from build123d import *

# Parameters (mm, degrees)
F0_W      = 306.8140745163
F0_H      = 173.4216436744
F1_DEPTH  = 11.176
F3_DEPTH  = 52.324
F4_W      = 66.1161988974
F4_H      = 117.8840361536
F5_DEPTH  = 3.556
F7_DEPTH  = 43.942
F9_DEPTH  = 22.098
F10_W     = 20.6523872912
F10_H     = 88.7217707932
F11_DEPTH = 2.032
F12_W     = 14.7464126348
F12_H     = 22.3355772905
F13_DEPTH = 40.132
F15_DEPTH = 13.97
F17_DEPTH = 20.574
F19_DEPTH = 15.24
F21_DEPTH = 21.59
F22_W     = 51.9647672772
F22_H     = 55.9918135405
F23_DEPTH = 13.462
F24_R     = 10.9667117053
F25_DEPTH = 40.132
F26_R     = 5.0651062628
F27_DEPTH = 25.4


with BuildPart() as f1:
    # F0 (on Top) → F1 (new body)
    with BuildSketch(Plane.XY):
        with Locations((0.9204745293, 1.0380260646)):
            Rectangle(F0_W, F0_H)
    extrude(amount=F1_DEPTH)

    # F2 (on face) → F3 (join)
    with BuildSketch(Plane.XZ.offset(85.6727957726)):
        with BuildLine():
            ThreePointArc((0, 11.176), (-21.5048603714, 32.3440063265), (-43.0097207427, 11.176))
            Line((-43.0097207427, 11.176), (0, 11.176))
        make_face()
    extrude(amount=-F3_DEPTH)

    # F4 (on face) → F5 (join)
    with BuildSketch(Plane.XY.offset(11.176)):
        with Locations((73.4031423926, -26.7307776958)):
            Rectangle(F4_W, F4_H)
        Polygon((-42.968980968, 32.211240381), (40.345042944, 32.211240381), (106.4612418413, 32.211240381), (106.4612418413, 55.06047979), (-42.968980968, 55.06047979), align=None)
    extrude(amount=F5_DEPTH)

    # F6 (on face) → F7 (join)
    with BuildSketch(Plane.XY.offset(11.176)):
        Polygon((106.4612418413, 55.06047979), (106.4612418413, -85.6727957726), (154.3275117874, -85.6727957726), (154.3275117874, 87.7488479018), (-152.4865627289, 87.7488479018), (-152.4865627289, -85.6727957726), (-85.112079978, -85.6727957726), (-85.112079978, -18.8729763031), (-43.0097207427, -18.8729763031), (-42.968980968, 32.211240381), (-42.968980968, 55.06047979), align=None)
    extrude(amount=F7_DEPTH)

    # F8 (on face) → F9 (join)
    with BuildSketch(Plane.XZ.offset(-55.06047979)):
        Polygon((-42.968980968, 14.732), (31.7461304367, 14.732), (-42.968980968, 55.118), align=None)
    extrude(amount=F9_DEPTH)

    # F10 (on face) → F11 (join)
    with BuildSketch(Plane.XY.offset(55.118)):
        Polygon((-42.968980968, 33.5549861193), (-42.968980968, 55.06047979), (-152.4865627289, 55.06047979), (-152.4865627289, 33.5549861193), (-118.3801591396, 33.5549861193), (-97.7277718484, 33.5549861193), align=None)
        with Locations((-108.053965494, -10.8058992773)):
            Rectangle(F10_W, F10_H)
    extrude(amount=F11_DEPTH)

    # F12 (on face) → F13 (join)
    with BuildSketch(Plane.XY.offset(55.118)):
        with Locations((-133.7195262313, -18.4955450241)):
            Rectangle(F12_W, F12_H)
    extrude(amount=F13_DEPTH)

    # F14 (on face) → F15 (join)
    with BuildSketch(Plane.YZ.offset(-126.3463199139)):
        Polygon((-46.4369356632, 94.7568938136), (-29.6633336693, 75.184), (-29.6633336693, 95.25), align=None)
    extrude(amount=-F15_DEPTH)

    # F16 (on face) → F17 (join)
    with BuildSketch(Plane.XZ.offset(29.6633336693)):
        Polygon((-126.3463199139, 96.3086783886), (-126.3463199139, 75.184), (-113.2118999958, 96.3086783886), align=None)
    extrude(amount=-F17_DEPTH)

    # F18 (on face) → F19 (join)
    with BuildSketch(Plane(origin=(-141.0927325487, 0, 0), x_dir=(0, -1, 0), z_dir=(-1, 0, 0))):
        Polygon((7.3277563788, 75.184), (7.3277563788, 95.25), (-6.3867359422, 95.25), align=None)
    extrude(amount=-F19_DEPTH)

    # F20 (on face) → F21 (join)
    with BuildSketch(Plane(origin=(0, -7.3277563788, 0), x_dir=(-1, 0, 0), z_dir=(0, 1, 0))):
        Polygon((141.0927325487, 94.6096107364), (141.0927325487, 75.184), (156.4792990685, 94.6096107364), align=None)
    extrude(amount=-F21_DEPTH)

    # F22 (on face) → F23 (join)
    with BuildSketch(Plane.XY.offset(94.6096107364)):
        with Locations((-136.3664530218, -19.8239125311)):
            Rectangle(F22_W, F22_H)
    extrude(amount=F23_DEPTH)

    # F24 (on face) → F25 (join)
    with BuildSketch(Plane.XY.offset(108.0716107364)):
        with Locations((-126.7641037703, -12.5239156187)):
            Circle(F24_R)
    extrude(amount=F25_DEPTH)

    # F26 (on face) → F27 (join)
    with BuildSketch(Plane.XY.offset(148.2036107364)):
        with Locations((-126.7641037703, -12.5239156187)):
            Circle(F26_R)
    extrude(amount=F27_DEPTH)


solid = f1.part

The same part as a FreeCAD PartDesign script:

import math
import FreeCAD as App
import Part
import Sketcher

V = App.Vector
Q = App.Units.Quantity

doc = App.newDocument("Part")
params = doc.addObject("Spreadsheet::Sheet", "Params")
for row, (alias, value) in enumerate([
    ("pad1_length", "0.44 in"),
    ("pad2_length", "2.06 in"),
    ("sketch3_width", "2.603 in"),
    ("pad3_length", "0.14 in"),
    ("pad4_length", "1.73 in"),
    ("sketch5_height", "1.59 in"),
    ("pad5_length", "0.87 in"),
    ("pad6_length", "0.08 in"),
    ("pad7_length", "1.58 in"),
    ("sketch8_height", "0.79 in"),
    ("pad8_length", "0.55 in"),
    ("pad9_length", "0.81 in"),
    ("sketch10_height", "0.79 in"),
    ("pad10_length", "0.6 in"),
    ("pad11_length", "0.85 in"),
    ("pad12_length", "0.53 in"),
    ("pad13_length", "1.58 in"),
    ("pad14_length", "1 in"),
], start=1):
    params.set(f"A{row}", alias)
    params.set(f"B{row}", "=" + value)
    params.setAlias(f"B{row}", alias)

body = doc.addObject("PartDesign::Body", "Body")

sketch1 = doc.addObject("Sketcher::SketchObject", "Sketch")
body.addObject(sketch1)
sketch1.AttachmentSupport = (doc.XY_Plane, [""])
sketch1.MapMode = "FlatFace"
sketch1.addGeometry([
    Part.LineSegment(V(-152, 88, 0), V(-152, -86, 0)),
    Part.LineSegment(V(-152, -86, 0), V(154, -86, 0)),
    Part.LineSegment(V(154, -86, 0), V(154, 88, 0)),
    Part.LineSegment(V(154, 88, 0), V(-152, 88, 0)),
], False)
sketch1.addConstraint([
    Sketcher.Constraint("Coincident", 0, 2, 1, 1),
    Sketcher.Constraint("Coincident", 1, 2, 2, 1),
    Sketcher.Constraint("Coincident", 2, 2, 3, 1),
    Sketcher.Constraint("Coincident", 3, 2, 0, 1),
    Sketcher.Constraint("Vertical", 0),
    Sketcher.Constraint("Horizontal", 1),
    Sketcher.Constraint("Vertical", 2),
    Sketcher.Constraint("Horizontal", 3),
    Sketcher.Constraint("DistanceX", 1, 1, 1, 2, Q("306.814075 mm")),
    Sketcher.Constraint("DistanceY", 0, 2, 0, 1, Q("173.421644 mm")),
    Sketcher.Constraint("DistanceX", -1, 1, 1, 2, Q("154.327512 mm")),
    Sketcher.Constraint("DistanceY", 0, 2, -1, 1, Q("85.672796 mm")),
])
pad1 = doc.addObject("PartDesign::Pad", "Pad")
body.addObject(pad1)
pad1.Profile = sketch1
pad1.setExpression("Length", "Params.pad1_length")

sketch2 = doc.addObject("Sketcher::SketchObject", "Sketch001")
body.addObject(sketch2)
sketch2.AttachmentSupport = (doc.XZ_Plane, [""])
sketch2.MapMode = "FlatFace"
sketch2.AttachmentOffset = App.Placement(V(0, 0, 85.672796), App.Rotation())
sketch2.addGeometry([
    Part.ArcOfCircle(Part.Circle(V(-22, 11, 0), V(0, 0, 1), 22), math.radians(1), math.radians(179)),
    Part.LineSegment(V(-43, 11, 0), V(0, 11, 0)),
], False)
sketch2.addConstraint([
    Sketcher.Constraint("Coincident", 0, 1, 1, 2),
    Sketcher.Constraint("Coincident", 1, 1, 0, 2),
    Sketcher.Constraint("Horizontal", 1),
    Sketcher.Constraint("PointOnObject", 0, 1, -2),
    Sketcher.Constraint("DistanceY", -1, 1, 0, 1, Q("0.44 in")),
    Sketcher.Constraint("Radius", 0, Q("21.507541 mm")),
    Sketcher.Constraint("DistanceX", 1, 1, 1, 2, Q("43.009721 mm")),
])
pad2 = doc.addObject("PartDesign::Pad", "Pad001")
body.addObject(pad2)
pad2.Profile = sketch2
pad2.setExpression("Length", "Params.pad2_length")
pad2.Reversed = True

sketch3 = doc.addObject("Sketcher::SketchObject", "Sketch002")
body.addObject(sketch3)
sketch3.AttachmentSupport = (doc.XY_Plane, [""])
sketch3.MapMode = "FlatFace"
sketch3.AttachmentOffset = App.Placement(V(0, 0, 0.44 * 25.4), App.Rotation())
sketch3.addGeometry([
    Part.LineSegment(V(40, 32, 0), V(40, -86, 0)),
    Part.LineSegment(V(40, -86, 0), V(106, -86, 0)),
    Part.LineSegment(V(106, -86, 0), V(106, 55, 0)),
    Part.LineSegment(V(106, 55, 0), V(-43, 55, 0)),
    Part.LineSegment(V(-43, 55, 0), V(-43, 32, 0)),
    Part.LineSegment(V(-43, 32, 0), V(40, 32, 0)),
], False)
sketch3.addConstraint([
    Sketcher.Constraint("Coincident", 0, 2, 1, 1),
    Sketcher.Constraint("Coincident", 1, 2, 2, 1),
    Sketcher.Constraint("Coincident", 2, 2, 3, 1),
    Sketcher.Constraint("Coincident", 3, 2, 4, 1),
    Sketcher.Constraint("Coincident", 4, 2, 5, 1),
    Sketcher.Constraint("Coincident", 5, 2, 0, 1),
    Sketcher.Constraint("Vertical", 0),
    Sketcher.Constraint("Horizontal", 1),
    Sketcher.Constraint("Vertical", 2),
    Sketcher.Constraint("Horizontal", 3),
    Sketcher.Constraint("Vertical", 4),
    Sketcher.Constraint("Horizontal", 5),
    Sketcher.Constraint("DistanceX", 1, 1, 1, 2, Q("2.603 in")),
    Sketcher.Constraint("DistanceY", 4, 2, 4, 1, Q("22.849239 mm")),
    Sketcher.Constraint("DistanceX", 3, 2, 3, 1, Q("149.430223 mm")),
    Sketcher.Constraint("DistanceY", 0, 2, 0, 1, Q("117.884036 mm")),
    Sketcher.Constraint("DistanceX", -1, 1, 1, 2, Q("106.461242 mm")),
    Sketcher.Constraint("DistanceY", -1, 1, 2, 2, Q("55.06048 mm")),
])
sketch3.setExpression("Constraints[12]", "Params.sketch3_width")
pad3 = doc.addObject("PartDesign::Pad", "Pad002")
body.addObject(pad3)
pad3.Profile = sketch3
pad3.setExpression("Length", "Params.pad3_length")

sketch4 = doc.addObject("Sketcher::SketchObject", "Sketch003")
body.addObject(sketch4)
sketch4.AttachmentSupport = (doc.XY_Plane, [""])
sketch4.MapMode = "FlatFace"
sketch4.AttachmentOffset = App.Placement(V(0, 0, 0.44 * 25.4), App.Rotation())
sketch4.addGeometry([
    Part.LineSegment(V(106, 55, 0), V(106, -86, 0)),
    Part.LineSegment(V(106, -86, 0), V(154, -86, 0)),
    Part.LineSegment(V(154, -86, 0), V(154, 88, 0)),
    Part.LineSegment(V(154, 88, 0), V(-152, 88, 0)),
    Part.LineSegment(V(-152, 88, 0), V(-152, -86, 0)),
    Part.LineSegment(V(-152, -86, 0), V(-85, -86, 0)),
    Part.LineSegment(V(-85, -86, 0), V(-85, -19, 0)),
    Part.LineSegment(V(-85, -19, 0), V(-43, -19, 0)),
    Part.LineSegment(V(-43, -19, 0), V(-43, 32, 0)),
    Part.LineSegment(V(-43, 32, 0), V(-43, 55, 0)),
    Part.LineSegment(V(-43, 55, 0), V(106, 55, 0)),
], False)
sketch4.addConstraint([
    Sketcher.Constraint("Coincident", 0, 2, 1, 1),
    Sketcher.Constraint("Coincident", 1, 2, 2, 1),
    Sketcher.Constraint("Coincident", 2, 2, 3, 1),
    Sketcher.Constraint("Coincident", 3, 2, 4, 1),
    Sketcher.Constraint("Coincident", 4, 2, 5, 1),
    Sketcher.Constraint("Coincident", 5, 2, 6, 1),
    Sketcher.Constraint("Coincident", 6, 2, 7, 1),
    Sketcher.Constraint("Coincident", 7, 2, 8, 1),
    Sketcher.Constraint("Coincident", 8, 2, 9, 1),
    Sketcher.Constraint("Coincident", 9, 2, 10, 1),
    Sketcher.Constraint("Coincident", 10, 2, 0, 1),
    Sketcher.Constraint("Vertical", 0),
    Sketcher.Constraint("Horizontal", 1),
    Sketcher.Constraint("Vertical", 2),
    Sketcher.Constraint("Horizontal", 3),
    Sketcher.Constraint("Vertical", 4),
    Sketcher.Constraint("Horizontal", 5),
    Sketcher.Constraint("Vertical", 6),
    Sketcher.Constraint("Horizontal", 7),
    Sketcher.Constraint("Vertical", 9),
    Sketcher.Constraint("Horizontal", 10),
    Sketcher.Constraint("Horizontal", 1, 2, 4, 2),
    Sketcher.Constraint("DistanceX", 1, 1, 1, 2, Q("47.86627 mm")),
    Sketcher.Constraint("DistanceX", 7, 1, 7, 2, Q("42.102359 mm")),
    Sketcher.Constraint("DistanceY", 6, 1, 6, 2, Q("66.799819 mm")),
    Sketcher.Constraint("DistanceY", 9, 1, 9, 2, Q("22.849239 mm")),
    Sketcher.Constraint("DistanceX", 6, 2, 8, 2, Q("42.143099 mm")),
    Sketcher.Constraint("DistanceX", 3, 2, 3, 1, Q("306.814075 mm")),
    Sketcher.Constraint("DistanceX", 5, 1, 5, 2, Q("67.374483 mm")),
    Sketcher.Constraint("DistanceY", 0, 2, 0, 1, Q("140.733276 mm")),
    Sketcher.Constraint("DistanceY", 2, 1, 2, 2, Q("173.421644 mm")),
    Sketcher.Constraint("DistanceX", -1, 1, 0, 2, Q("106.461242 mm")),
    Sketcher.Constraint("DistanceY", -1, 1, 8, 2, Q("32.21124 mm")),
])
pad4 = doc.addObject("PartDesign::Pad", "Pad003")
body.addObject(pad4)
pad4.Profile = sketch4
pad4.setExpression("Length", "Params.pad4_length")

sketch5 = doc.addObject("Sketcher::SketchObject", "Sketch004")
body.addObject(sketch5)
sketch5.AttachmentSupport = (doc.XZ_Plane, [""])
sketch5.MapMode = "FlatFace"
sketch5.AttachmentOffset = App.Placement(V(0, 0, -55.06048), App.Rotation())
sketch5.addGeometry([
    Part.LineSegment(V(-43, 15, 0), V(32, 15, 0)),
    Part.LineSegment(V(32, 15, 0), V(-43, 55, 0)),
    Part.LineSegment(V(-43, 55, 0), V(-43, 15, 0)),
], False)
sketch5.addConstraint([
    Sketcher.Constraint("Coincident", 0, 2, 1, 1),
    Sketcher.Constraint("Coincident", 1, 2, 2, 1),
    Sketcher.Constraint("Coincident", 2, 2, 0, 1),
    Sketcher.Constraint("Horizontal", 0),
    Sketcher.Constraint("Vertical", 2),
    Sketcher.Constraint("DistanceY", 2, 2, 2, 1, Q("1.59 in")),
    Sketcher.Constraint("DistanceY", -1, 1, 0, 2, Q("0.58 in")),
    Sketcher.Constraint("Distance", 1, Q("84.931601 mm")),
    Sketcher.Constraint("DistanceX", -1, 1, 0, 2, Q("31.74613 mm")),
])
sketch5.setExpression("Constraints[5]", "Params.sketch5_height")
pad5 = doc.addObject("PartDesign::Pad", "Pad004")
body.addObject(pad5)
pad5.Profile = sketch5
pad5.setExpression("Length", "Params.pad5_length")

sketch6 = doc.addObject("Sketcher::SketchObject", "Sketch005")
body.addObject(sketch6)
sketch6.AttachmentSupport = (doc.XY_Plane, [""])
sketch6.MapMode = "FlatFace"
sketch6.AttachmentOffset = App.Placement(V(0, 0, 2.17 * 25.4), App.Rotation())
sketch6.addGeometry([
    Part.LineSegment(V(-43, 34, 0), V(-43, 55, 0)),
    Part.LineSegment(V(-43, 55, 0), V(-152, 55, 0)),
    Part.LineSegment(V(-152, 55, 0), V(-152, 34, 0)),
    Part.LineSegment(V(-152, 34, 0), V(-118, 34, 0)),
    Part.LineSegment(V(-118, 34, 0), V(-118, -55, 0)),
    Part.LineSegment(V(-118, -55, 0), V(-98, -55, 0)),
    Part.LineSegment(V(-98, -55, 0), V(-98, 34, 0)),
    Part.LineSegment(V(-98, 34, 0), V(-43, 34, 0)),
], False)
sketch6.addConstraint([
    Sketcher.Constraint("Coincident", 0, 2, 1, 1),
    Sketcher.Constraint("Coincident", 1, 2, 2, 1),
    Sketcher.Constraint("Coincident", 2, 2, 3, 1),
    Sketcher.Constraint("Coincident", 3, 2, 4, 1),
    Sketcher.Constraint("Coincident", 4, 2, 5, 1),
    Sketcher.Constraint("Coincident", 5, 2, 6, 1),
    Sketcher.Constraint("Coincident", 6, 2, 7, 1),
    Sketcher.Constraint("Coincident", 7, 2, 0, 1),
    Sketcher.Constraint("Vertical", 0),
    Sketcher.Constraint("Horizontal", 1),
    Sketcher.Constraint("Vertical", 2),
    Sketcher.Constraint("Horizontal", 3),
    Sketcher.Constraint("Vertical", 4),
    Sketcher.Constraint("Horizontal", 5),
    Sketcher.Constraint("Vertical", 6),
    Sketcher.Constraint("Horizontal", 7),
    Sketcher.Constraint("Horizontal", 3, 2, 6, 2),
    Sketcher.Constraint("DistanceX", 1, 2, 1, 1, Q("109.517582 mm")),
    Sketcher.Constraint("DistanceX", 7, 1, 7, 2, Q("54.758791 mm")),
    Sketcher.Constraint("DistanceY", 4, 2, 4, 1, Q("88.721771 mm")),
    Sketcher.Constraint("DistanceX", 3, 1, 3, 2, Q("34.106404 mm")),
    Sketcher.Constraint("DistanceY", 0, 1, 0, 2, Q("21.505494 mm")),
    Sketcher.Constraint("DistanceX", 0, 2, -1, 1, Q("42.968981 mm")),
    Sketcher.Constraint("DistanceY", -1, 1, 0, 2, Q("55.06048 mm")),
])
pad6 = doc.addObject("PartDesign::Pad", "Pad005")
body.addObject(pad6)
pad6.Profile = sketch6
pad6.setExpression("Length", "Params.pad6_length")

sketch7 = doc.addObject("Sketcher::SketchObject", "Sketch006")
body.addObject(sketch7)
sketch7.AttachmentSupport = (doc.XY_Plane, [""])
sketch7.MapMode = "FlatFace"
sketch7.AttachmentOffset = App.Placement(V(0, 0, 2.17 * 25.4), App.Rotation())
sketch7.addGeometry([
    Part.LineSegment(V(-141, -7, 0), V(-141, -30, 0)),
    Part.LineSegment(V(-141, -30, 0), V(-126, -30, 0)),
    Part.LineSegment(V(-126, -30, 0), V(-126, -7, 0)),
    Part.LineSegment(V(-126, -7, 0), V(-141, -7, 0)),
], False)
sketch7.addConstraint([
    Sketcher.Constraint("Coincident", 0, 2, 1, 1),
    Sketcher.Constraint("Coincident", 1, 2, 2, 1),
    Sketcher.Constraint("Coincident", 2, 2, 3, 1),
    Sketcher.Constraint("Coincident", 3, 2, 0, 1),
    Sketcher.Constraint("Vertical", 0),
    Sketcher.Constraint("Horizontal", 1),
    Sketcher.Constraint("Vertical", 2),
    Sketcher.Constraint("Horizontal", 3),
    Sketcher.Constraint("DistanceX", 1, 1, 1, 2, Q("14.746413 mm")),
    Sketcher.Constraint("DistanceY", 0, 2, 0, 1, Q("22.335577 mm")),
    Sketcher.Constraint("DistanceX", 1, 2, -1, 1, Q("126.34632 mm")),
    Sketcher.Constraint("DistanceY", 0, 2, -1, 1, Q("29.663334 mm")),
])
pad7 = doc.addObject("PartDesign::Pad", "Pad006")
body.addObject(pad7)
pad7.Profile = sketch7
pad7.setExpression("Length", "Params.pad7_length")

sketch8 = doc.addObject("Sketcher::SketchObject", "Sketch007")
body.addObject(sketch8)
sketch8.AttachmentSupport = (doc.YZ_Plane, [""])
sketch8.MapMode = "FlatFace"
sketch8.AttachmentOffset = App.Placement(V(0, 0, -126.34632), App.Rotation())
sketch8.addGeometry([
    Part.LineSegment(V(-46.436936, 94.756894, 0), V(-29.663334, 75.184, 0)),
    Part.LineSegment(V(-29.663334, 75.184, 0), V(-29.663334, 95.25, 0)),
    Part.LineSegment(V(-29.663334, 95.25, 0), V(-46.436936, 94.756894, 0)),
], False)
sketch8.addConstraint([
    Sketcher.Constraint("Coincident", 0, 2, 1, 1),
    Sketcher.Constraint("Coincident", 1, 2, 2, 1),
    Sketcher.Constraint("Coincident", 2, 2, 0, 1),
    Sketcher.Constraint("Vertical", 1),
    Sketcher.Constraint("DistanceY", 1, 1, 1, 2, Q("0.79 in")),
    Sketcher.Constraint("DistanceY", -1, 1, 0, 2, Q("2.96 in")),
    Sketcher.Constraint("DistanceX", 2, 2, 1, 2, Q("16.773602 mm")),
    Sketcher.Constraint("Distance", 2, Q("16.780849 mm")),
    Sketcher.Constraint("DistanceX", 0, 2, -1, 1, Q("29.663334 mm")),
])
sketch8.setExpression("Constraints[4]", "Params.sketch8_height")
pad8 = doc.addObject("PartDesign::Pad", "Pad007")
body.addObject(pad8)
pad8.Profile = sketch8
pad8.setExpression("Length", "Params.pad8_length")
pad8.Reversed = True

sketch9 = doc.addObject("Sketcher::SketchObject", "Sketch008")
body.addObject(sketch9)
sketch9.AttachmentSupport = (doc.XZ_Plane, [""])
sketch9.MapMode = "FlatFace"
sketch9.AttachmentOffset = App.Placement(V(0, 0, 29.663334), App.Rotation())
sketch9.addGeometry([
    Part.LineSegment(V(-126, 96, 0), V(-126, 75, 0)),
    Part.LineSegment(V(-126, 75, 0), V(-113, 96, 0)),
    Part.LineSegment(V(-113, 96, 0), V(-126, 96, 0)),
], False)
sketch9.addConstraint([
    Sketcher.Constraint("Coincident", 0, 2, 1, 1),
    Sketcher.Constraint("Coincident", 1, 2, 2, 1),
    Sketcher.Constraint("Coincident", 2, 2, 0, 1),
    Sketcher.Constraint("Vertical", 0),
    Sketcher.Constraint("Horizontal", 2),
    Sketcher.Constraint("DistanceY", -1, 1, 0, 2, Q("2.96 in")),
    Sketcher.Constraint("DistanceX", 2, 2, 2, 1, Q("13.13442 mm")),
    Sketcher.Constraint("DistanceY", 0, 2, 0, 1, Q("21.124678 mm")),
    Sketcher.Constraint("DistanceX", 1, 2, -1, 1, Q("113.2119 mm")),
])
pad9 = doc.addObject("PartDesign::Pad", "Pad008")
body.addObject(pad9)
pad9.Profile = sketch9
pad9.setExpression("Length", "Params.pad9_length")
pad9.Reversed = True

sketch10 = doc.addObject("Sketcher::SketchObject", "Sketch009")
body.addObject(sketch10)
sketch10.AttachmentSupport = (doc.YZ_Plane, [""])
sketch10.MapMode = "FlatFace"
sketch10.AttachmentOffset = App.Placement(V(0, 0, -141.092733), App.Rotation())
sketch10.addGeometry([
    Part.LineSegment(V(-7, 75, 0), V(-7, 95, 0)),
    Part.LineSegment(V(-7, 95, 0), V(6, 95, 0)),
    Part.LineSegment(V(6, 95, 0), V(-7, 75, 0)),
], False)
sketch10.addConstraint([
    Sketcher.Constraint("Coincident", 0, 2, 1, 1),
    Sketcher.Constraint("Coincident", 1, 2, 2, 1),
    Sketcher.Constraint("Coincident", 2, 2, 0, 1),
    Sketcher.Constraint("Vertical", 0),
    Sketcher.Constraint("Horizontal", 1),
    Sketcher.Constraint("DistanceY", 0, 1, 0, 2, Q("0.79 in")),
    Sketcher.Constraint("DistanceY", -1, 1, 0, 2, Q("3.75 in")),
    Sketcher.Constraint("Distance", 2, Q("24.304972 mm")),
    Sketcher.Constraint("DistanceX", 0, 2, -1, 1, Q("7.327756 mm")),
])
sketch10.setExpression("Constraints[5]", "Params.sketch10_height")
pad10 = doc.addObject("PartDesign::Pad", "Pad009")
body.addObject(pad10)
pad10.Profile = sketch10
pad10.setExpression("Length", "Params.pad10_length")

sketch11 = doc.addObject("Sketcher::SketchObject", "Sketch010")
body.addObject(sketch11)
sketch11.AttachmentSupport = (doc.XZ_Plane, [""])
sketch11.MapMode = "FlatFace"
sketch11.AttachmentOffset = App.Placement(V(0, 0, 7.327756), App.Rotation())
sketch11.addGeometry([
    Part.LineSegment(V(-141, 95, 0), V(-141, 75, 0)),
    Part.LineSegment(V(-141, 75, 0), V(-156, 95, 0)),
    Part.LineSegment(V(-156, 95, 0), V(-141, 95, 0)),
], False)
sketch11.addConstraint([
    Sketcher.Constraint("Coincident", 0, 2, 1, 1),
    Sketcher.Constraint("Coincident", 1, 2, 2, 1),
    Sketcher.Constraint("Coincident", 2, 2, 0, 1),
    Sketcher.Constraint("Vertical", 0),
    Sketcher.Constraint("Horizontal", 2),
    Sketcher.Constraint("DistanceY", -1, 1, 0, 2, Q("2.96 in")),
    Sketcher.Constraint("DistanceY", 0, 2, 0, 1, Q("19.425611 mm")),
    Sketcher.Constraint("DistanceX", 1, 2, -1, 1, Q("156.479299 mm")),
    Sketcher.Constraint("DistanceX", 2, 1, 2, 2, Q("15.386567 mm")),
])
pad11 = doc.addObject("PartDesign::Pad", "Pad010")
body.addObject(pad11)
pad11.Profile = sketch11
pad11.setExpression("Length", "Params.pad11_length")

sketch12 = doc.addObject("Sketcher::SketchObject", "Sketch011")
body.addObject(sketch12)
sketch12.AttachmentSupport = (doc.XY_Plane, [""])
sketch12.MapMode = "FlatFace"
sketch12.AttachmentOffset = App.Placement(V(0, 0, 94.609611), App.Rotation())
sketch12.addGeometry([
    Part.LineSegment(V(-162, 8, 0), V(-162, -48, 0)),
    Part.LineSegment(V(-162, -48, 0), V(-110, -48, 0)),
    Part.LineSegment(V(-110, -48, 0), V(-110, 8, 0)),
    Part.LineSegment(V(-110, 8, 0), V(-162, 8, 0)),
], False)
sketch12.addConstraint([
    Sketcher.Constraint("Coincident", 0, 2, 1, 1),
    Sketcher.Constraint("Coincident", 1, 2, 2, 1),
    Sketcher.Constraint("Coincident", 2, 2, 3, 1),
    Sketcher.Constraint("Coincident", 3, 2, 0, 1),
    Sketcher.Constraint("Vertical", 0),
    Sketcher.Constraint("Horizontal", 1),
    Sketcher.Constraint("Vertical", 2),
    Sketcher.Constraint("Horizontal", 3),
    Sketcher.Constraint("DistanceX", 1, 1, 1, 2, Q("51.964767 mm")),
    Sketcher.Constraint("DistanceY", 0, 2, 0, 1, Q("55.991814 mm")),
    Sketcher.Constraint("DistanceY", 0, 2, -1, 1, Q("47.819819 mm")),
    Sketcher.Constraint("DistanceX", 1, 2, -1, 1, Q("110.384069 mm")),
])
pad12 = doc.addObject("PartDesign::Pad", "Pad011")
body.addObject(pad12)
pad12.Profile = sketch12
pad12.setExpression("Length", "Params.pad12_length")

sketch13 = doc.addObject("Sketcher::SketchObject", "Sketch012")
body.addObject(sketch13)
sketch13.AttachmentSupport = (doc.XY_Plane, [""])
sketch13.MapMode = "FlatFace"
sketch13.AttachmentOffset = App.Placement(V(0, 0, 108.071611), App.Rotation())
sketch13.addGeometry(Part.Circle(V(-127, -13, 0), V(0, 0, 1), 11), False)
sketch13.addConstraint([
    Sketcher.Constraint("Diameter", 0, Q("21.933423 mm")),
    Sketcher.Constraint("DistanceX", 0, 3, -1, 1, Q("126.764104 mm")),
    Sketcher.Constraint("DistanceY", 0, 3, -1, 1, Q("12.523916 mm")),
])
pad13 = doc.addObject("PartDesign::Pad", "Pad012")
body.addObject(pad13)
pad13.Profile = sketch13
pad13.setExpression("Length", "Params.pad13_length")

sketch14 = doc.addObject("Sketcher::SketchObject", "Sketch013")
body.addObject(sketch14)
sketch14.AttachmentSupport = (doc.XY_Plane, [""])
sketch14.MapMode = "FlatFace"
sketch14.AttachmentOffset = App.Placement(V(0, 0, 148.203611), App.Rotation())
sketch14.addGeometry(Part.Circle(V(-127, -13, 0), V(0, 0, 1), 5), False)
sketch14.addConstraint([
    Sketcher.Constraint("Diameter", 0, Q("10.130213 mm")),
    Sketcher.Constraint("DistanceX", 0, 3, -1, 1, Q("126.764104 mm")),
    Sketcher.Constraint("DistanceY", 0, 3, -1, 1, Q("12.523916 mm")),
])
pad14 = doc.addObject("PartDesign::Pad", "Pad013")
body.addObject(pad14)
pad14.Profile = sketch14
pad14.setExpression("Length", "Params.pad14_length")

doc.recompute()
